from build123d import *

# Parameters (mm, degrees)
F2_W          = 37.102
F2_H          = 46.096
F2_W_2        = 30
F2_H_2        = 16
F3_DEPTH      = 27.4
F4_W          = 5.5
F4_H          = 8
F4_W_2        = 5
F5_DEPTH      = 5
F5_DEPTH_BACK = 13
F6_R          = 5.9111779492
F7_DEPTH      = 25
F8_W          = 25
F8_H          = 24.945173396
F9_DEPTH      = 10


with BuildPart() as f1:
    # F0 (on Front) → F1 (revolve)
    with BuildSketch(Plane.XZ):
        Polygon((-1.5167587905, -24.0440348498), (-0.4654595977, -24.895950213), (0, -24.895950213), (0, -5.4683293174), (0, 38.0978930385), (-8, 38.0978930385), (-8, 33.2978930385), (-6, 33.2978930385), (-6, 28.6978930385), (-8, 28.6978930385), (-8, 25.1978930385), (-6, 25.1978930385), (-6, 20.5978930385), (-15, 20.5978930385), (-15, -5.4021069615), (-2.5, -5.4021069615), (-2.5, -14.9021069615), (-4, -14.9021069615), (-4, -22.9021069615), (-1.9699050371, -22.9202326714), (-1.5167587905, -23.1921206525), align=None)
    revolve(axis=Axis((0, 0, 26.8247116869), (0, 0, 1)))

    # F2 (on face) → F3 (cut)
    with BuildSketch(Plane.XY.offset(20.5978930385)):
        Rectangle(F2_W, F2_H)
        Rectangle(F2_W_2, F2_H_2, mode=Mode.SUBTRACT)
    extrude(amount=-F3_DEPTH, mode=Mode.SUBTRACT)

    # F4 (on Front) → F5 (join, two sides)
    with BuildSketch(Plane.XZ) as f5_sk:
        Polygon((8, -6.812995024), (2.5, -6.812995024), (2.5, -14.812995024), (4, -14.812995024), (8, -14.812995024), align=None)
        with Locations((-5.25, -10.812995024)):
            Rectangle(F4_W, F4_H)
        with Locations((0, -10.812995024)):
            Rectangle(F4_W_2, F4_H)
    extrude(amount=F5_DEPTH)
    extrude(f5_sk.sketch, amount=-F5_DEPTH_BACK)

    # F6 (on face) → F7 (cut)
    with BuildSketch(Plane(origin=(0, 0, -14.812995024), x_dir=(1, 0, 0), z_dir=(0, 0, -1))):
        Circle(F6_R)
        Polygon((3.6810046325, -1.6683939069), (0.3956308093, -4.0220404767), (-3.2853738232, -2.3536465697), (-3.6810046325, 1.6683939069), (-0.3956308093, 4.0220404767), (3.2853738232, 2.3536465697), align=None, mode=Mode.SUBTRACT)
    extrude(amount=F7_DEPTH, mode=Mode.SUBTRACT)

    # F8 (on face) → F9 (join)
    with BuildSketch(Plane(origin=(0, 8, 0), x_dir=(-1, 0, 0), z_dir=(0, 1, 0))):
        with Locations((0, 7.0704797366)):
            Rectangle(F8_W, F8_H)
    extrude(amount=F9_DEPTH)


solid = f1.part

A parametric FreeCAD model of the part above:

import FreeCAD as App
import Part
import Sketcher
Q = App.Units.Quantity


def add_polygon(sketch, points):
    """Adds a closed chain of lines whose ends are joined by coincident constraints."""
    first, n = sketch.GeometryCount, len(points)
    for a, b in zip(points, points[1:] + points[:1]):
        sketch.addGeometry(Part.LineSegment(App.Vector(*a, 0), App.Vector(*b, 0)), False)
    for i in range(n):
        sketch.addConstraint(Sketcher.Constraint("Coincident", first + i, 2, first + (i + 1) % n, 1))

doc = App.newDocument("Part")
body = doc.addObject("PartDesign::Body", "Body")

sketch1 = body.newObject("Sketcher::SketchObject", "Sketch")
sketch1.AttachmentSupport = (doc.getObject("XZ_Plane"), [""])
sketch1.MapMode = "FlatFace"
add_polygon(sketch1, [(-1.52, -24.04), (-0.47, -24.9), (0, -24.9), (0, 38.1), (-8, 38.1), (-8, 33.3), (-6, 33.3), (-6, 28.7), (-8, 28.7), (-8, 25.2), (-6, 25.2), (-6, 20.6), (-15, 20.6), (-15, -5.4), (-2.5, -5.4), (-2.5, -14.9), (-4, -14.9), (-4, -22.9), (-1.97, -22.92), (-1.52, -23.19)])
sketch1.addConstraint([
    Sketcher.Constraint("Horizontal", 1),
    Sketcher.Constraint("Vertical", 2),
    Sketcher.Constraint("Horizontal", 3),
    Sketcher.Constraint("Vertical", 4),
    Sketcher.Constraint("Horizontal", 5),
    Sketcher.Constraint("Vertical", 6),
    Sketcher.Constraint("Horizontal", 7),
    Sketcher.Constraint("Vertical", 8),
    Sketcher.Constraint("Horizontal", 9),
    Sketcher.Constraint("Vertical", 10),
    Sketcher.Constraint("Horizontal", 11),
    Sketcher.Constraint("Vertical", 12),
    Sketcher.Constraint("Horizontal", 13),
    Sketcher.Constraint("Vertical", 14),
    Sketcher.Constraint("Horizontal", 15),
    Sketcher.Constraint("Vertical", 16),
    Sketcher.Constraint("Vertical", 19),
    Sketcher.Constraint("PointOnObject", 1, 2, -2),
    Sketcher.Constraint("Vertical", 4, 2, 7, 2),
    Sketcher.Constraint("Vertical", 6, 2, 9, 2),
    Sketcher.Constraint("Equal", 6, 10),
    Sketcher.Constraint("Equal", 3, 16),
    Sketcher.Constraint("DistanceX", 3, 2, 3, 1, Q("8 mm")),
    Sketcher.Constraint("DistanceX", 5, 1, 5, 2, Q("2 mm")),
    Sketcher.Constraint("DistanceX", 11, 2, 11, 1, Q("9 mm")),
    Sketcher.Constraint("DistanceY", 12, 2, 12, 1, Q("26 mm")),
    Sketcher.Constraint("DistanceX", 13, 1, 13, 2, Q("12.5 mm")),
    Sketcher.Constraint("DistanceX", 15, 2, 15, 1, Q("1.5 mm")),
    Sketcher.Constraint("DistanceY", 4, 2, 4, 1, Q("4.8 mm")),
    Sketcher.Constraint("DistanceY", 6, 2, 6, 1, Q("4.6 mm")),
    Sketcher.Constraint("DistanceY", 8, 2, 8, 1, Q("3.5 mm")),
    Sketcher.Constraint("DistanceY", 14, 2, 14, 1, Q("9.5 mm")),
    Sketcher.Constraint("DistanceX", 1, 1, 1, 2, Q("0.46546 mm")),
    Sketcher.Constraint("DistanceX", 18, 2, 0, 2, Q("1.051299 mm")),
    Sketcher.Constraint("Distance", 0, Q("1.353141 mm")),
    Sketcher.Constraint("DistanceY", 2, 1, 2, 2, Q("62.993843 mm")),
    Sketcher.Constraint("DistanceY", 19, 2, 19, 1, Q("0.851914 mm")),
    Sketcher.Constraint("DistanceY", 0, 2, -1, 1, Q("24.89595 mm")),
    Sketcher.Constraint("Distance", 17, Q("2.030176 mm")),
    Sketcher.Constraint("Distance", 18, Q("0.528455 mm")),
])
revolution = body.newObject("PartDesign::Revolution", "Revolution")
revolution.Profile = sketch1
revolution.ReferenceAxis = (sketch1, ["V_Axis"])
revolution.Angle = 360

sketch2 = body.newObject("Sketcher::SketchObject", "Sketch001")
sketch2.AttachmentSupport = (doc.getObject("XY_Plane"), [""])
sketch2.MapMode = "FlatFace"
sketch2.AttachmentOffset = App.Placement(App.Vector(0, 0, 20.597893), App.Rotation())
add_polygon(sketch2, [(-19, 23), (-19, -23), (19, -23), (19, 23)])
add_polygon(sketch2, [(15, -8), (-15, -8), (-15, 8), (15, 8)])
sketch2.addConstraint([
    Sketcher.Constraint("Vertical", 0),
    Sketcher.Constraint("Horizontal", 1),
    Sketcher.Constraint("Vertical", 2),
    Sketcher.Constraint("Horizontal", 3),
    Sketcher.Constraint("Horizontal", 4),
    Sketcher.Constraint("Vertical", 5),
    Sketcher.Constraint("Horizontal", 6),
    Sketcher.Constraint("Vertical", 7),
    Sketcher.Constraint("Symmetric", 0, 2, 2, 2, -1, 1),
    Sketcher.Constraint("Symmetric", 4, 2, 6, 2, -1, 1),
    Sketcher.Constraint("DistanceX", 4, 2, 4, 1, Q("30 mm")),
    Sketcher.Constraint("DistanceY", 5, 1, 5, 2, Q("16 mm")),
    Sketcher.Constraint("DistanceX", 1, 1, 1, 2, Q("37.102 mm")),
    Sketcher.Constraint("DistanceY", 0, 2, 0, 1, Q("46.096 mm")),
])
pocket1 = body.newObject("PartDesign::Pocket", "Pocket")
pocket1.Profile = sketch2
pocket1.Length = 27.4

sketch3 = body.newObject("Sketcher::SketchObject", "Sketch002")
sketch3.AttachmentSupport = (doc.getObject("XZ_Plane"), [""])
sketch3.MapMode = "FlatFace"
add_polygon(sketch3, [(8, -7), (-8, -7), (-8, -15), (8, -15)])
sketch3.addConstraint([
    Sketcher.Constraint("Horizontal", 0),
    Sketcher.Constraint("Vertical", 1),
    Sketcher.Constraint("Horizontal", 2),
    Sketcher.Constraint("Vertical", 3),
    Sketcher.Constraint("DistanceX", 0, 2, 0, 1, Q("16 mm")),
    Sketcher.Constraint("DistanceY", 1, 2, 1, 1, Q("8 mm")),
    Sketcher.Constraint("DistanceX", 0, 2, -1, 1, Q("8 mm")),
    Sketcher.Constraint("DistanceY", 0, 2, -1, 1, Q("6.812995 mm")),
])
pad1 = body.newObject("PartDesign::Pad", "Pad")
pad1.Profile = sketch3
pad1.Type = "TwoLengths"
pad1.Length = 5
pad1.Length2 = 13

sketch4 = body.newObject("Sketcher::SketchObject", "Sketch003")
sketch4.AttachmentSupport = (doc.getObject("XY_Plane"), [""])
sketch4.MapMode = "FlatFace"
sketch4.AttachmentOffset = App.Placement(App.Vector(0, 0, -14.812995), App.Rotation())
sketch4.addGeometry(Part.Circle(App.Vector(0, 0, 0), App.Vector(0, 0, 1), 5.9), False)
add_polygon(sketch4, [(3.3, -2.4), (3.7, 1.7), (0.4, 4), (-3.3, 2.4), (-3.7, -1.7), (-0.4, -4)])
sketch4.addConstraint([
    Sketcher.Constraint("Coincident", 0, 3, -1, 1),
    Sketcher.Constraint("Symmetric", 1, 2, 4, 2, -1, 1),
    Sketcher.Constraint("Symmetric", 2, 2, 5, 2, -1, 1),
    Sketcher.Constraint("Symmetric", 3, 2, 6, 2, -1, 1),
    Sketcher.Constraint("Equal", 1, 2),
    Sketcher.Constraint("Equal", 2, 3),
    Sketcher.Constraint("Diameter", 0, Q("11.822356 mm")),
    Sketcher.Constraint("Distance", 1, Q("4.041452 mm")),
    Sketcher.Constraint("DistanceX", -1, 1, 2, 2, Q("0.395631 mm")),
    Sketcher.Constraint("DistanceY", -1, 1, 2, 2, Q("4.02204 mm")),
    Sketcher.Constraint("DistanceX", 3, 2, 1, 2, Q("6.966378 mm")),
])
pocket2 = body.newObject("PartDesign::Pocket", "Pocket001")
pocket2.Profile = sketch4
pocket2.Length = 25

sketch5 = body.newObject("Sketcher::SketchObject", "Sketch004")
sketch5.AttachmentSupport = (doc.getObject("XZ_Plane"), [""])
sketch5.MapMode = "FlatFace"
sketch5.AttachmentOffset = App.Placement(App.Vector(0, 0, -8), App.Rotation())
add_polygon(sketch5, [(12, 20), (12, -5), (-12, -5), (-12, 20)])
sketch5.addConstraint([
    Sketcher.Constraint("Vertical", 0),
    Sketcher.Constraint("Horizontal", 1),
    Sketcher.Constraint("Vertical", 2),
    Sketcher.Constraint("Horizontal", 3),
    Sketcher.Constraint("DistanceX", 1, 2, 1, 1, Q("25 mm")),
    Sketcher.Constraint("DistanceX", -1, 1, 0, 2, Q("12.5 mm")),
    Sketcher.Constraint("DistanceY", 0, 2, 0, 1, Q("24.945173 mm")),
    Sketcher.Constraint("DistanceY", 0, 2, -1, 1, Q("5.402107 mm")),
])
pad2 = body.newObject("PartDesign::Pad", "Pad001")
pad2.Profile = sketch5
pad2.Length = 10
pad2.Reversed = True

doc.recompute()
